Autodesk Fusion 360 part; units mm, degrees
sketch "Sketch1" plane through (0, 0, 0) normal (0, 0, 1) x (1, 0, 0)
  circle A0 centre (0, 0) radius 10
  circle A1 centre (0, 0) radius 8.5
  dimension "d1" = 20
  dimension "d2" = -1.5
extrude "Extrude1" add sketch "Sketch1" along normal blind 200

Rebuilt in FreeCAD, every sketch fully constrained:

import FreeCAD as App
import Part
import Sketcher
Q = App.Units.Quantity

doc = App.newDocument("Part")
params = doc.addObject("Spreadsheet::Sheet", "Params")
for row, (alias, value) in enumerate([
    ("sketch1_diameter", "20 mm"),
    ("sketch1_diameter2", "17 mm"),
    ("pad1_length", "200 mm"),
], start=1):
    params.set(f"A{row}", alias)
    params.set(f"B{row}", "=" + value)
    params.setAlias(f"B{row}", alias)

body = doc.addObject("PartDesign::Body", "Body")

# Sketch on XY plane
sketch1 = body.newObject("Sketcher::SketchObject", "Sketch")
sketch1.AttachmentSupport = (doc.getObject("XY_Plane"), [""])
sketch1.MapMode = "FlatFace"
sketch1.addGeometry(Part.Circle(App.Vector(0, 0, 0), App.Vector(0, 0, 1), 10), False)
sketch1.addGeometry(Part.Circle(App.Vector(0, 0, 0), App.Vector(0, 0, 1), 8), False)
sketch1.addConstraint(Sketcher.Constraint("Coincident", 0, 3, -1, 1))
sketch1.addConstraint(Sketcher.Constraint("Coincident", 1, 3, -1, 1))
sketch1.addConstraint(Sketcher.Constraint("Diameter", 0, Q("20 mm")))
sketch1.addConstraint(Sketcher.Constraint("Diameter", 1, Q("17 mm")))
sketch1.setExpression("Constraints[2]", "Params.sketch1_diameter")
sketch1.setExpression("Constraints[3]", "Params.sketch1_diameter2")
pad1 = body.newObject("PartDesign::Pad", "Pad")
pad1.Profile = sketch1
pad1.setExpression("Length", "Params.pad1_length")

doc.recompute()
